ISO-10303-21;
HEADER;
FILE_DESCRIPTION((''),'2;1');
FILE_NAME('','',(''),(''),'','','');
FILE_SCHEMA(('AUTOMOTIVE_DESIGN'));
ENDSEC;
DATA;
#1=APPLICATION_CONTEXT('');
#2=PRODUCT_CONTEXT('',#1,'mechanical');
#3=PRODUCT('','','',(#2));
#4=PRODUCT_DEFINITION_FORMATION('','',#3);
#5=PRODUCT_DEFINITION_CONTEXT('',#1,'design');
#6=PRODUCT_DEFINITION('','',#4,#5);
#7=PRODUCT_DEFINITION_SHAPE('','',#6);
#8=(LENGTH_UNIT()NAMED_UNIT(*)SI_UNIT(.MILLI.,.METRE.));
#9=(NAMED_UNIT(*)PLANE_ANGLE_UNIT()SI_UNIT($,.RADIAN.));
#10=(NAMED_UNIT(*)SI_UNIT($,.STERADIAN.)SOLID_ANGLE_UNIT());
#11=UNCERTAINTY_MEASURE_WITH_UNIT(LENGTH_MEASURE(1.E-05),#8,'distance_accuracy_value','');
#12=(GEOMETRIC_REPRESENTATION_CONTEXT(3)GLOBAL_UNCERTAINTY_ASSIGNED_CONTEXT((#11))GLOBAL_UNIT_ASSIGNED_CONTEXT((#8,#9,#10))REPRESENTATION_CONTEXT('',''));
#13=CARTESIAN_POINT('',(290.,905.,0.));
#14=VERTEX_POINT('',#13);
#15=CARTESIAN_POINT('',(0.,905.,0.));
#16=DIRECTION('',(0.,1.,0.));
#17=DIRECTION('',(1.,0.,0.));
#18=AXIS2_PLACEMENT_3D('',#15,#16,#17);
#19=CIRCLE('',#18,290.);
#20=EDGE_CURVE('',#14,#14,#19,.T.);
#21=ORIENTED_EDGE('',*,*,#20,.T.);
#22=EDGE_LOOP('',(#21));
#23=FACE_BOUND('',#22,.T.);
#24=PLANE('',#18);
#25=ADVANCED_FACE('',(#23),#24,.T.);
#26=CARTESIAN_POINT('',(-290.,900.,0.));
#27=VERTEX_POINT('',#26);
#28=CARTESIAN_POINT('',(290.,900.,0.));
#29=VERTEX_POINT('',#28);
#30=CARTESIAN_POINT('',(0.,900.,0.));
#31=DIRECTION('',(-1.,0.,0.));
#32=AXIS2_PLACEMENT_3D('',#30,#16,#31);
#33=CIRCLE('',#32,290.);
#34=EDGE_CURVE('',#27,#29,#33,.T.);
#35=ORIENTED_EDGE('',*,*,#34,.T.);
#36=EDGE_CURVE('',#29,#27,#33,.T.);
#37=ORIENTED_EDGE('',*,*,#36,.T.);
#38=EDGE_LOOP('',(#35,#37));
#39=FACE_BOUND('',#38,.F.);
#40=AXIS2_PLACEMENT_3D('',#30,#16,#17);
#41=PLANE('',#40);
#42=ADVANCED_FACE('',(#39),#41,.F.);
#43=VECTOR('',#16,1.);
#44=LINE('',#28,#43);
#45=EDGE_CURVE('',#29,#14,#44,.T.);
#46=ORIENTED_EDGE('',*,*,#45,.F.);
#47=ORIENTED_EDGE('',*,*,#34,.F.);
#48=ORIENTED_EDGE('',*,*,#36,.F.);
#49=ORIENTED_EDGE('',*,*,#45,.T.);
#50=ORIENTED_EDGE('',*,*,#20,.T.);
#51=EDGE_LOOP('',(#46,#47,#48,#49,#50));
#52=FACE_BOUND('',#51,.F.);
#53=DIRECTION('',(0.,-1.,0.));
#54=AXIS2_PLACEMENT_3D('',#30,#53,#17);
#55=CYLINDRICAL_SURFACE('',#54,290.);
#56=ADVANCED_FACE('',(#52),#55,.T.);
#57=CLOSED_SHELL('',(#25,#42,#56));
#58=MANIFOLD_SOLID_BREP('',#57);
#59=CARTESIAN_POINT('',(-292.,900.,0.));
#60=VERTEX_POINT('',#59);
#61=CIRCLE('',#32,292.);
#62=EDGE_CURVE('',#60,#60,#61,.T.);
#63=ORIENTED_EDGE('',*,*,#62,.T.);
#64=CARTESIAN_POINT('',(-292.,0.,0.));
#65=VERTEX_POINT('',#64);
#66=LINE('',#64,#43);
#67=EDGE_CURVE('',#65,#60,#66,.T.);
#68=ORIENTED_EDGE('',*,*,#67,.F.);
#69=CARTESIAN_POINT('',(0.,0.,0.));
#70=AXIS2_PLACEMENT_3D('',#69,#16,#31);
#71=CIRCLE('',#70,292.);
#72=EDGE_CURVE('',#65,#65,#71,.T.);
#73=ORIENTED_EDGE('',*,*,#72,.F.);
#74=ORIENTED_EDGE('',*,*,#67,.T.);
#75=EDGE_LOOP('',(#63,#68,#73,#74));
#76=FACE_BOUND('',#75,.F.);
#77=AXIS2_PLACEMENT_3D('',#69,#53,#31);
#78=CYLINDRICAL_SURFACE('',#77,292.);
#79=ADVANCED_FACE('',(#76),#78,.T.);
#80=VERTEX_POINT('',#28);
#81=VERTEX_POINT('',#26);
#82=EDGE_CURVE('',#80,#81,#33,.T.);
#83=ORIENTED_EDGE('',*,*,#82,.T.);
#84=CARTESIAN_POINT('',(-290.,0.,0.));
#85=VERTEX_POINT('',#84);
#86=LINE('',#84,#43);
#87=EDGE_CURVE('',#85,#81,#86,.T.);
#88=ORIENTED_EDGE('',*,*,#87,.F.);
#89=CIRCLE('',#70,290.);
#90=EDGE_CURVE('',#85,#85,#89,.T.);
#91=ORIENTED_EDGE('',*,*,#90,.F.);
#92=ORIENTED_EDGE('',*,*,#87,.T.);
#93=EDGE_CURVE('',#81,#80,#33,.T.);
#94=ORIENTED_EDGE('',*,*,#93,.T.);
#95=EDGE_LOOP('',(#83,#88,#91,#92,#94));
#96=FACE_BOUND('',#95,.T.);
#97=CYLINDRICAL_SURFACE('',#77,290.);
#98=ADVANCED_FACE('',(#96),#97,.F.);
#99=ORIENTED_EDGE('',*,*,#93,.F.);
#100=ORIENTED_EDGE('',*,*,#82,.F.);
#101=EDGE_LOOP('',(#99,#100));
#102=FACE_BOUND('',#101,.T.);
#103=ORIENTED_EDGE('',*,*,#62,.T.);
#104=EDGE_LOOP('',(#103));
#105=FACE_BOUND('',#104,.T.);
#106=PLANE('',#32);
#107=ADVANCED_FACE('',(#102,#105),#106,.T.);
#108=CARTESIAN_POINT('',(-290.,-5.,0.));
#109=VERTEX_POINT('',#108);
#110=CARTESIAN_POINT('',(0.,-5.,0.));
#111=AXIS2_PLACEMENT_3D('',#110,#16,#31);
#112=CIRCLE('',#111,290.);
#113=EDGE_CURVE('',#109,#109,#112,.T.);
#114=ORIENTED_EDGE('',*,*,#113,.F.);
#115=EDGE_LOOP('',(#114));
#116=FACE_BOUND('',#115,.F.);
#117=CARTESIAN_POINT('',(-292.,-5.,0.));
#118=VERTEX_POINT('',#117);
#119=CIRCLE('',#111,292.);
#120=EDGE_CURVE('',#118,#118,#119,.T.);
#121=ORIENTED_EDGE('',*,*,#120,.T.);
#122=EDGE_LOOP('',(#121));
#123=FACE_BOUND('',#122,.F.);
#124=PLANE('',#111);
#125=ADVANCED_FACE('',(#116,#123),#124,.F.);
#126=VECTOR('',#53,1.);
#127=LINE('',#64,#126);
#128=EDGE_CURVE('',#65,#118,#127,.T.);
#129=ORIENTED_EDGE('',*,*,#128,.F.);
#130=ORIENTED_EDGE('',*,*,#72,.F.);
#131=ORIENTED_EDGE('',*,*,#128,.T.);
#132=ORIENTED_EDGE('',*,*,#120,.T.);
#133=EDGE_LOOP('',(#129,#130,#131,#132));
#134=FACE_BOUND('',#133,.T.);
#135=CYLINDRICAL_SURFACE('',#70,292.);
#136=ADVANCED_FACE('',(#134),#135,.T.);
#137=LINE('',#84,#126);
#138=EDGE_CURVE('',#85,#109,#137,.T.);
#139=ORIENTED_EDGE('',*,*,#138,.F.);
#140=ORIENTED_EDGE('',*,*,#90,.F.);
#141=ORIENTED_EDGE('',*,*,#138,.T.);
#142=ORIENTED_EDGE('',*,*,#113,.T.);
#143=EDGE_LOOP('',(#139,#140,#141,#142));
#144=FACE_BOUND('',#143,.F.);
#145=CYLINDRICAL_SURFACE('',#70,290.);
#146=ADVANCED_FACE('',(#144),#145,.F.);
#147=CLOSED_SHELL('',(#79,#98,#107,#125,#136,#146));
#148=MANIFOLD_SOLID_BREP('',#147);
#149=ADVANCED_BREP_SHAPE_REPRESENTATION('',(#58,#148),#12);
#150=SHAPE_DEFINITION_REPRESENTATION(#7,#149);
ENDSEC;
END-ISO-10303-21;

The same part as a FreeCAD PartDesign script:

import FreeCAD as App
import Part
import Sketcher

V = App.Vector

doc = App.newDocument("Part")
body = doc.addObject("PartDesign::Body", "Body")
body.AllowCompound = True

# Sketch on XZ plane
sketch1 = body.newObject("Sketcher::SketchObject", "Sketch")
sketch1.AttachmentSupport = (doc.getObject("XZ_Plane"), [""])
sketch1.MapMode = "FlatFace"
sketch1.addGeometry([
    Part.Circle(V(0, 0, 0), V(0, 0, 1), 292),
    Part.Circle(V(0, 0, 0), V(0, 0, 1), 290),
], False)
sketch1.addConstraint([
    Sketcher.Constraint("Coincident", 0, 3, -1, 1),
    Sketcher.Constraint("Coincident", 1, 3, -1, 1),
    Sketcher.Constraint("Diameter", 0, 584.0),
    Sketcher.Constraint("Diameter", 1, 580.0),
])
pad1 = body.newObject("PartDesign::Pad", "Pad")
pad1.Profile = sketch1
pad1.Type = "TwoLengths"
pad1.Length = 900
pad1.Length2 = 5
pad1.Reversed = True

# Sketch on XZ plane
sketch2 = body.newObject("Sketcher::SketchObject", "Sketch001")
sketch2.AttachmentSupport = (doc.getObject("XZ_Plane"), [""])
sketch2.MapMode = "FlatFace"
sketch2.AttachmentOffset = App.Placement(V(0, 0, -900), App.Rotation())
sketch2.addGeometry(Part.Circle(V(0, 0, 0), V(0, 0, 1), 290), False)
sketch2.addConstraint([
    Sketcher.Constraint("Coincident", 0, 3, -1, 1),
    Sketcher.Constraint("Diameter", 0, 580.0),
])
pad2 = body.newObject("PartDesign::Pad", "Pad001")
pad2.Profile = sketch2
pad2.Length = 5
pad2.Reversed = True

doc.recompute()
